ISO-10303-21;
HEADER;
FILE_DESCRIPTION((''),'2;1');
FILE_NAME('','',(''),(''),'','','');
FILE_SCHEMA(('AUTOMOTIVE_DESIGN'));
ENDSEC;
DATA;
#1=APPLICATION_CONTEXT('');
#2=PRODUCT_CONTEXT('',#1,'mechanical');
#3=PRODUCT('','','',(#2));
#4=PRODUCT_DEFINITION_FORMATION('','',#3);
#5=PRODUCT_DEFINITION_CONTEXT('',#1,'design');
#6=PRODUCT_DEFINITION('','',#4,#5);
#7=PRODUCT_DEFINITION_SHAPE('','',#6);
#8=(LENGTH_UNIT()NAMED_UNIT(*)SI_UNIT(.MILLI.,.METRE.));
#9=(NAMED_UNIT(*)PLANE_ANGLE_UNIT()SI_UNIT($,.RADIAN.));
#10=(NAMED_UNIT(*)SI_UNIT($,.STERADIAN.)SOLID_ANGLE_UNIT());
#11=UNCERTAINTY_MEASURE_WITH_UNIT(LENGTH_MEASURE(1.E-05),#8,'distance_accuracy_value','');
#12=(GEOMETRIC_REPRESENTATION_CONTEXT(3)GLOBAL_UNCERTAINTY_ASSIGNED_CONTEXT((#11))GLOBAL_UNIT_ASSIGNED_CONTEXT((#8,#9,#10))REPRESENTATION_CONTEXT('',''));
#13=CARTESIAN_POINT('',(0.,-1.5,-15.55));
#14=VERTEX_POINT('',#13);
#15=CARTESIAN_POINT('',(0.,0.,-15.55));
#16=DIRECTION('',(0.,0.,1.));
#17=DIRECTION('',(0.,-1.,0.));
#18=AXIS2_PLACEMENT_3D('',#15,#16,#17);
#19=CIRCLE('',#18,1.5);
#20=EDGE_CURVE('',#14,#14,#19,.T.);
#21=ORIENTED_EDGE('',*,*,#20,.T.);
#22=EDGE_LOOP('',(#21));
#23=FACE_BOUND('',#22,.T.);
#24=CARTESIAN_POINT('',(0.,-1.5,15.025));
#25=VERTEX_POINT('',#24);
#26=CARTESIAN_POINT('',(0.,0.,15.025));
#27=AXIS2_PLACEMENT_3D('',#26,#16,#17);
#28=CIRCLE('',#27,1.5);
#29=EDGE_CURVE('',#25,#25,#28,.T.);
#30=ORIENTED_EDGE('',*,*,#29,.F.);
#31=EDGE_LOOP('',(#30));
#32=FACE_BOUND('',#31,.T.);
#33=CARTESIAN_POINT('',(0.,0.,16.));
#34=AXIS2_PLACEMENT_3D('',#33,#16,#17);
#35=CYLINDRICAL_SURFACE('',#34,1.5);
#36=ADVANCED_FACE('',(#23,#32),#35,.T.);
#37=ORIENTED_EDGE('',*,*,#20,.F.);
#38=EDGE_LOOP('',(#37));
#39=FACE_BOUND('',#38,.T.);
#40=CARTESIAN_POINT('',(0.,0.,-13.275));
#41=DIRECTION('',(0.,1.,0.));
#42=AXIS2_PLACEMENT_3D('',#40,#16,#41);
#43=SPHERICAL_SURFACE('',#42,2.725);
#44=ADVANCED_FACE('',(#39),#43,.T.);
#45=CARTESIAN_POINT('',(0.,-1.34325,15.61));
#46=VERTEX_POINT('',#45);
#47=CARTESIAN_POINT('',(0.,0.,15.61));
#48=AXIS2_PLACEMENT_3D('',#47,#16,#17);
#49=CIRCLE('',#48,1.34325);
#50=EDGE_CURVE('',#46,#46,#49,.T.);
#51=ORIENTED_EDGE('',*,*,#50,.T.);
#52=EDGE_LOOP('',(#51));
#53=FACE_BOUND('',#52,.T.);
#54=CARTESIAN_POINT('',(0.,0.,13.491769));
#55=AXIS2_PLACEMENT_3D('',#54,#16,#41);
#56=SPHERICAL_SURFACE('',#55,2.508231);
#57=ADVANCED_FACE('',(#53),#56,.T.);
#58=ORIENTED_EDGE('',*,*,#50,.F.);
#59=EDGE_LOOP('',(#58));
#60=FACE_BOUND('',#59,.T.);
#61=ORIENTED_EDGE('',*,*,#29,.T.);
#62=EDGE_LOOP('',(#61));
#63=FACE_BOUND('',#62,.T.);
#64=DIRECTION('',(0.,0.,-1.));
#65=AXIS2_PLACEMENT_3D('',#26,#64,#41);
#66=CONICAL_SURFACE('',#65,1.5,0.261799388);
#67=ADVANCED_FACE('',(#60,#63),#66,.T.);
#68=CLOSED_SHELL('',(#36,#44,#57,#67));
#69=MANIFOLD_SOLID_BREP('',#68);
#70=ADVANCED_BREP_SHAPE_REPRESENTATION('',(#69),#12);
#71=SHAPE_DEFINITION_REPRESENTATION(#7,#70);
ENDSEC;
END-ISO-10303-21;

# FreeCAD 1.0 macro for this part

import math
import FreeCAD as App
import Part
import Sketcher

V = App.Vector
Q = App.Units.Quantity

doc = App.newDocument("Part")
params = doc.addObject("Spreadsheet::Sheet", "Params")
for row, (alias, value) in enumerate([
    ("sketch1_height", "32 mm"),
    ("revolution_angle", "360 deg"),
], start=1):
    params.set(f"A{row}", alias)
    params.set(f"B{row}", "=" + value)
    params.setAlias(f"B{row}", alias)

body = doc.addObject("PartDesign::Body", "Body")

sketch1 = doc.addObject("Sketcher::SketchObject", "Sketch")
body.addObject(sketch1)
sketch1.AttachmentSupport = (doc.YZ_Plane, [""])
sketch1.MapMode = "FlatFace"
sketch1.addGeometry(Part.LineSegment(V(0, 16, 0), V(0, -16, 0)), False)
sketch1.addGeometry(Part.ArcOfCircle(Part.Circle(V(0, -13.275, 0), V(0, 0, 1), 2.725), math.radians(-90), math.radians(-56.601512)), False)
sketch1.addGeometry(Part.LineSegment(V(1.5, -15.55, 0), V(1.5, 15.025, 0)), False)
sketch1.addGeometry(Part.LineSegment(V(1.5, 15.025, 0), V(1.34325, 15.61, 0)), False)
sketch1.addGeometry(Part.ArcOfCircle(Part.Circle(V(0, 13.491769, 0), V(0, 0, 1), 2.508231), math.radians(57.619678), math.radians(90)), False)
sketch1.addConstraint(Sketcher.Constraint("Coincident", 0, 2, 1, 1))
sketch1.addConstraint(Sketcher.Constraint("Coincident", 1, 2, 2, 1))
sketch1.addConstraint(Sketcher.Constraint("Coincident", 2, 2, 3, 1))
sketch1.addConstraint(Sketcher.Constraint("Coincident", 3, 2, 4, 1))
sketch1.addConstraint(Sketcher.Constraint("Coincident", 4, 2, 0, 1))
sketch1.addConstraint(Sketcher.Constraint("Vertical", 0))
sketch1.addConstraint(Sketcher.Constraint("Vertical", 2))
sketch1.addConstraint(Sketcher.Constraint("Symmetric", 0, 2, 4, 2, -1, 1))
sketch1.addConstraint(Sketcher.Constraint("PointOnObject", 1, 3, -2))
sketch1.addConstraint(Sketcher.Constraint("PointOnObject", 4, 3, -2))
sketch1.addConstraint(Sketcher.Constraint("DistanceY", 0, 2, 0, 1, Q("32 mm")))
sketch1.addConstraint(Sketcher.Constraint("Angle", 3, Q("105 deg")))
sketch1.addConstraint(Sketcher.Constraint("Radius", 1, Q("2.725 mm")))
sketch1.addConstraint(Sketcher.Constraint("DistanceX", -1, 1, 1, 2, Q("1.5 mm")))
sketch1.addConstraint(Sketcher.Constraint("DistanceY", 1, 3, 2, 2, Q("28.3 mm")))
sketch1.addConstraint(Sketcher.Constraint("DistanceY", -1, 1, 3, 2, Q("15.61 mm")))
sketch1.setExpression("Constraints[10]", "Params.sketch1_height")
revolution = doc.addObject("PartDesign::Revolution", "Revolution")
body.addObject(revolution)
revolution.Profile = sketch1
revolution.ReferenceAxis = (sketch1, ["V_Axis"])
revolution.setExpression("Angle", "Params.revolution_angle")

doc.recompute()
